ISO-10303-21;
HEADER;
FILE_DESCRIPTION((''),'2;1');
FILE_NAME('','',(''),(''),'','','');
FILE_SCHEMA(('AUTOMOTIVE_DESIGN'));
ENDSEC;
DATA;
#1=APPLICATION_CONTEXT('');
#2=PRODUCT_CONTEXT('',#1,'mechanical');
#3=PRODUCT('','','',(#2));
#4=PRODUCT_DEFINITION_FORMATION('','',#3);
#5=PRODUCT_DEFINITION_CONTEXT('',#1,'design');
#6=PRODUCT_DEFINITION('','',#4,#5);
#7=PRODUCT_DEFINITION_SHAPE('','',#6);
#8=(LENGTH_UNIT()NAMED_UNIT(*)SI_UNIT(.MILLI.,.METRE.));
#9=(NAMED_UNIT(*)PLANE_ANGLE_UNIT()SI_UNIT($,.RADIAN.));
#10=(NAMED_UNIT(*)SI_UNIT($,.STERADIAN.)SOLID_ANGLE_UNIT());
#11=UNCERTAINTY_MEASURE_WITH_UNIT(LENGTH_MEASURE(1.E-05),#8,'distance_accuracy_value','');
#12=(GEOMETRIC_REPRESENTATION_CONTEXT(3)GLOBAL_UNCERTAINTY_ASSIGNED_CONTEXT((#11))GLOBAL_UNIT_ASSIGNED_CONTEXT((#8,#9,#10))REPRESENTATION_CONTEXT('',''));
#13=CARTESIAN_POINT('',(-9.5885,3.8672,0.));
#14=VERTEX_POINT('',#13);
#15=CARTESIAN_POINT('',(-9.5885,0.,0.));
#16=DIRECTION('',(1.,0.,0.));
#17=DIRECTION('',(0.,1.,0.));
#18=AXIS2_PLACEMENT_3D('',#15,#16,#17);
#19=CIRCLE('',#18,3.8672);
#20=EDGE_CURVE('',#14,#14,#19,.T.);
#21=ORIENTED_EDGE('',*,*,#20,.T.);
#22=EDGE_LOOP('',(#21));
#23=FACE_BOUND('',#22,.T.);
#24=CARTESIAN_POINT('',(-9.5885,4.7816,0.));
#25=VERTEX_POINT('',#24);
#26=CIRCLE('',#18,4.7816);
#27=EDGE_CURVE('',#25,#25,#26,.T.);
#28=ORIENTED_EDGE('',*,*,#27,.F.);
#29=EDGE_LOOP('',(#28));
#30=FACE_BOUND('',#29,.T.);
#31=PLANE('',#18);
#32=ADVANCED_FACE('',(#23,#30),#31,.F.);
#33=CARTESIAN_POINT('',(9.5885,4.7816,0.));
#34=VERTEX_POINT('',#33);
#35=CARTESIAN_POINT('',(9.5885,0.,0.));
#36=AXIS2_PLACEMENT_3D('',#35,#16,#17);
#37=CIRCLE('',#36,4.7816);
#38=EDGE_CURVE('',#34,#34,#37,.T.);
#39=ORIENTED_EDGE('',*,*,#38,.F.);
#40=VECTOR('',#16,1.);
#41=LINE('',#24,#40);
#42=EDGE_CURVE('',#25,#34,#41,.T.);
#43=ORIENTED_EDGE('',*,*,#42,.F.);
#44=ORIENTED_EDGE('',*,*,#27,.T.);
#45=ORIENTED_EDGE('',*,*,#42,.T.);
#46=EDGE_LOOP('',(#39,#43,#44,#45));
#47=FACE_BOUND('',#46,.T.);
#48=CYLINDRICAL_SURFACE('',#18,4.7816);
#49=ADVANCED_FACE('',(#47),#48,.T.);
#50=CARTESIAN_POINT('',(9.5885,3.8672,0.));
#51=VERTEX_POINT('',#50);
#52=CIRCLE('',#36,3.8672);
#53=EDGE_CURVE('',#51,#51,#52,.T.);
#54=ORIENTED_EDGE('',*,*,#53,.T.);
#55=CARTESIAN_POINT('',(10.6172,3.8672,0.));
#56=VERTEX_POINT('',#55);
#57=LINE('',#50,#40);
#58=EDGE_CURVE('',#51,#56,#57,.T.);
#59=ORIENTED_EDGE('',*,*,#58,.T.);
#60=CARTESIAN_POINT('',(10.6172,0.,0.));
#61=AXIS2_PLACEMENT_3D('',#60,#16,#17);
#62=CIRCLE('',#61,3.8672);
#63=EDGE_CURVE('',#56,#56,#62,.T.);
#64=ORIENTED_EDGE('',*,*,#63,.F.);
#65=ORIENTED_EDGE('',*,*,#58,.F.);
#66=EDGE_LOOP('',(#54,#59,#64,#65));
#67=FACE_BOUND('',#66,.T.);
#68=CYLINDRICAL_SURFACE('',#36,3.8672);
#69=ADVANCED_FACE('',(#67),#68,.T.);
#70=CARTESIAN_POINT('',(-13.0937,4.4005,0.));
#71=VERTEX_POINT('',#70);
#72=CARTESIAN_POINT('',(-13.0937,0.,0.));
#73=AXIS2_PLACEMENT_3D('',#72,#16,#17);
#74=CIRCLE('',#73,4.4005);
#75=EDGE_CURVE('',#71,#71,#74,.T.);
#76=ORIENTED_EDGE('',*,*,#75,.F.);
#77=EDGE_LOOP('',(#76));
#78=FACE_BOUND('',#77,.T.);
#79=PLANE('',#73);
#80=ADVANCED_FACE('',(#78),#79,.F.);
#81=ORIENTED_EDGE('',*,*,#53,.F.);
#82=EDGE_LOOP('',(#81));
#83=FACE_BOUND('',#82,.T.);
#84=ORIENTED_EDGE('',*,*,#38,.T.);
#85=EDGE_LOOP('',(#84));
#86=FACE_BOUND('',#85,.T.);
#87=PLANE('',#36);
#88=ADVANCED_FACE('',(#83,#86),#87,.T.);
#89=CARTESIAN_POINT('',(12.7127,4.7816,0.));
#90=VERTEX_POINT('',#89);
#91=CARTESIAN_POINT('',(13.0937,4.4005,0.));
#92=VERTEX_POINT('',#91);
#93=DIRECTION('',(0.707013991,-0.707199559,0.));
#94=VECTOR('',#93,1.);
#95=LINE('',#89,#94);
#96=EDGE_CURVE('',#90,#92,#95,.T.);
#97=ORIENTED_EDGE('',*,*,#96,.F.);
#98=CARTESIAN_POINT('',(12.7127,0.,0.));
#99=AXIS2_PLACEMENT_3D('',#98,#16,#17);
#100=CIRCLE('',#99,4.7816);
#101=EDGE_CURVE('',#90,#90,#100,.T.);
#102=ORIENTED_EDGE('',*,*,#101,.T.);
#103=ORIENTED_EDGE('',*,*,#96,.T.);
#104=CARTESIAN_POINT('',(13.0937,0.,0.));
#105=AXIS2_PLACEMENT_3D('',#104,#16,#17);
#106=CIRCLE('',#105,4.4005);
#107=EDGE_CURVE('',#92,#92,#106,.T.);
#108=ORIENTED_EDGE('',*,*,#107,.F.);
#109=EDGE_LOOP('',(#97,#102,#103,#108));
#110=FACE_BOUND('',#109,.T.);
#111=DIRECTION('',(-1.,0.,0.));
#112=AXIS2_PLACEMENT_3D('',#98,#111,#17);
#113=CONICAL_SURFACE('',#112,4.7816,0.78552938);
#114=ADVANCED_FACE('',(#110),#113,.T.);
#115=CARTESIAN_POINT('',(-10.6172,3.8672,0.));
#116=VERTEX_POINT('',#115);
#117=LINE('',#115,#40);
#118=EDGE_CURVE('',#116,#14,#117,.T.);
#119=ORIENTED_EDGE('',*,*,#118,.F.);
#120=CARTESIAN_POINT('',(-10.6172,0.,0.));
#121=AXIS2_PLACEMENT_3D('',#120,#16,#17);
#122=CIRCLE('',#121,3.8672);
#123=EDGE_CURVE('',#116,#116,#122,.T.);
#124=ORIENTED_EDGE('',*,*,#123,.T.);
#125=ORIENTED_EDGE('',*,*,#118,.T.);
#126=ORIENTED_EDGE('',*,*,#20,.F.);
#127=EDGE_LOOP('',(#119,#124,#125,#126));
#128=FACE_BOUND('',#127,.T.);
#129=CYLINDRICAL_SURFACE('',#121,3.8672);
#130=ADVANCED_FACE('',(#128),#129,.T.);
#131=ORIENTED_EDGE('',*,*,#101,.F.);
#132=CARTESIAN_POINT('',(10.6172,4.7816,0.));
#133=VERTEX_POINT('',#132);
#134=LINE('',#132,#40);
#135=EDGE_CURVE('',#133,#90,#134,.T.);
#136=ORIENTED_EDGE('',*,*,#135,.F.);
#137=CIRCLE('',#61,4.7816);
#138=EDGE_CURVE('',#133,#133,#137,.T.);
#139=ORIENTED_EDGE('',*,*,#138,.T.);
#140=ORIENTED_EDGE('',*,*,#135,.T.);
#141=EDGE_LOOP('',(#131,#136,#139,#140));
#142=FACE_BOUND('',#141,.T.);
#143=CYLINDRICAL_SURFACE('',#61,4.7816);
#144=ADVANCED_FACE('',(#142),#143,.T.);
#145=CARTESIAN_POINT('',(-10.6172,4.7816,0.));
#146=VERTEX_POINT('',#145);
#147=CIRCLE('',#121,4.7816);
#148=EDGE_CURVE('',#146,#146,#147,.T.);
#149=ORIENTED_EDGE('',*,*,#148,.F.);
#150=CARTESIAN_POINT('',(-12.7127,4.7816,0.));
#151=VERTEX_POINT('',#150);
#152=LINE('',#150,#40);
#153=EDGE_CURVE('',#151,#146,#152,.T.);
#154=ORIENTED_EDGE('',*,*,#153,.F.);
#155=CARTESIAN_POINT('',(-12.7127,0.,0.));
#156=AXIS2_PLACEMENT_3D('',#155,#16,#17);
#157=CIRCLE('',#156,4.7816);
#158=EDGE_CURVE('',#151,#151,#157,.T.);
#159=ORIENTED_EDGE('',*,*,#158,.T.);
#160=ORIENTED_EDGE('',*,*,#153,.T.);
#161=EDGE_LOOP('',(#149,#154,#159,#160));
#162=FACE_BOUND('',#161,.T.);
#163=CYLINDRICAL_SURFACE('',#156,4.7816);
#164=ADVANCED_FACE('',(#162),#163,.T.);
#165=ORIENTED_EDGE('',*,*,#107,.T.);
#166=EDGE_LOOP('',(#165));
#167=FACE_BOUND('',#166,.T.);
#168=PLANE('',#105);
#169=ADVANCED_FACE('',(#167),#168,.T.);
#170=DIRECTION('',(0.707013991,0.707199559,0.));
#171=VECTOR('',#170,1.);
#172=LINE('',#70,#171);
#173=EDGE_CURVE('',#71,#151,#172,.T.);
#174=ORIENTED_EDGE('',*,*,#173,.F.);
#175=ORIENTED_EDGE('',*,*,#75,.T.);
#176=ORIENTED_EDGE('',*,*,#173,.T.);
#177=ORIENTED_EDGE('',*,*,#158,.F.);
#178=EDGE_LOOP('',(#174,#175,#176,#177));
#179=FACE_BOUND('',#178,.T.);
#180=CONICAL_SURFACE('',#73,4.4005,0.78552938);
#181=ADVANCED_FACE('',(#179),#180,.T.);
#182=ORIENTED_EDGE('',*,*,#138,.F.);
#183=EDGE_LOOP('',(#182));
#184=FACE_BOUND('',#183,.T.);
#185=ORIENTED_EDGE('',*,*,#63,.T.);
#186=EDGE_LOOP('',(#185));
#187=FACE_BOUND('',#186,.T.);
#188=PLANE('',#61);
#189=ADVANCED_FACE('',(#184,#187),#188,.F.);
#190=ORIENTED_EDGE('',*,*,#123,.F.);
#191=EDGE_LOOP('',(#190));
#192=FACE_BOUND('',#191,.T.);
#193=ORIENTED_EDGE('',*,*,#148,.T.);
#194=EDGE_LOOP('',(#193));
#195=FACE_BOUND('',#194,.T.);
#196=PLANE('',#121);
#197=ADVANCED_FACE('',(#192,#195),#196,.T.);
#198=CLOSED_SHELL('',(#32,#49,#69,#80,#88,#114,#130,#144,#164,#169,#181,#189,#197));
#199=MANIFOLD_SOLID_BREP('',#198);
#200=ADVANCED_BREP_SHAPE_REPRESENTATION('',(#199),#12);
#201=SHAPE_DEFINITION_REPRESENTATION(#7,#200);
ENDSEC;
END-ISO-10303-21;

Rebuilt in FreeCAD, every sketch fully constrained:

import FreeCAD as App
import Part
import Sketcher
from FreeCAD import Vector
Q = App.Units.Quantity


def add_polygon(sketch, points):
    """Adds a closed chain of lines whose ends are joined by coincident constraints."""
    first, n = sketch.GeometryCount, len(points)
    for a, b in zip(points, points[1:] + points[:1]):
        sketch.addGeometry(Part.LineSegment(App.Vector(*a, 0), App.Vector(*b, 0)), False)
    for i in range(n):
        sketch.addConstraint(Sketcher.Constraint("Coincident", first + i, 2, first + (i + 1) % n, 1))

doc = App.newDocument("Part")
body = doc.addObject("PartDesign::Body", "Body")

sketch1 = doc.addObject("Sketcher::SketchObject", "Sketch")
body.addObject(sketch1)
sketch1.AttachmentSupport = (doc.XY_Plane, [""])
sketch1.MapMode = "FlatFace"
add_polygon(sketch1, [(-13.1, 0), (13.1, 0), (13.1, 4.4), (12.7, 4.8), (10.6, 4.8), (10.6, 3.9), (9.6, 3.9), (9.6, 4.8), (-9.6, 4.8), (-9.6, 3.9), (-10.6, 3.9), (-10.6, 4.8), (-12.7, 4.8), (-13.1, 4.4)])
sketch1.addConstraint([
    Sketcher.Constraint("Horizontal", 0),
    Sketcher.Constraint("Vertical", 1),
    Sketcher.Constraint("Horizontal", 3),
    Sketcher.Constraint("Vertical", 4),
    Sketcher.Constraint("Horizontal", 5),
    Sketcher.Constraint("Vertical", 6),
    Sketcher.Constraint("Horizontal", 7),
    Sketcher.Constraint("Vertical", 8),
    Sketcher.Constraint("Horizontal", 9),
    Sketcher.Constraint("Vertical", 10),
    Sketcher.Constraint("Horizontal", 11),
    Sketcher.Constraint("Vertical", 13),
    Sketcher.Constraint("Symmetric", 0, 2, 13, 2, -1, 1),
    Sketcher.Constraint("Symmetric", 5, 2, 8, 2, -2),
    Sketcher.Constraint("Symmetric", 3, 2, 10, 2, -2),
    Sketcher.Constraint("Perpendicular", 2, 12),
    Sketcher.Constraint("Horizontal", 3, 2, 6, 2),
    Sketcher.Constraint("Horizontal", 1, 2, 12, 2),
    Sketcher.Constraint("Equal", 3, 11),
    Sketcher.Constraint("DistanceX", 0, 1, 0, 2, Q("1.031 in")),
    Sketcher.Constraint("DistanceX", 7, 2, 7, 1, Q("0.755 in")),
    Sketcher.Constraint("DistanceY", 4, 2, 4, 1, Q("0.036 in")),
    Sketcher.Constraint("DistanceX", 3, 2, 3, 1, Q("0.0825 in")),
    Sketcher.Constraint("DistanceX", 5, 2, 5, 1, Q("0.0405 in")),
    Sketcher.Constraint("DistanceY", 1, 1, 1, 2, 4.4005),
])
revolution = doc.addObject("PartDesign::Revolution", "Revolution")
body.addObject(revolution)
revolution.Profile = sketch1
revolution.ReferenceAxis = (sketch1, ["H_Axis"])
revolution.Angle = 360

doc.recompute()
